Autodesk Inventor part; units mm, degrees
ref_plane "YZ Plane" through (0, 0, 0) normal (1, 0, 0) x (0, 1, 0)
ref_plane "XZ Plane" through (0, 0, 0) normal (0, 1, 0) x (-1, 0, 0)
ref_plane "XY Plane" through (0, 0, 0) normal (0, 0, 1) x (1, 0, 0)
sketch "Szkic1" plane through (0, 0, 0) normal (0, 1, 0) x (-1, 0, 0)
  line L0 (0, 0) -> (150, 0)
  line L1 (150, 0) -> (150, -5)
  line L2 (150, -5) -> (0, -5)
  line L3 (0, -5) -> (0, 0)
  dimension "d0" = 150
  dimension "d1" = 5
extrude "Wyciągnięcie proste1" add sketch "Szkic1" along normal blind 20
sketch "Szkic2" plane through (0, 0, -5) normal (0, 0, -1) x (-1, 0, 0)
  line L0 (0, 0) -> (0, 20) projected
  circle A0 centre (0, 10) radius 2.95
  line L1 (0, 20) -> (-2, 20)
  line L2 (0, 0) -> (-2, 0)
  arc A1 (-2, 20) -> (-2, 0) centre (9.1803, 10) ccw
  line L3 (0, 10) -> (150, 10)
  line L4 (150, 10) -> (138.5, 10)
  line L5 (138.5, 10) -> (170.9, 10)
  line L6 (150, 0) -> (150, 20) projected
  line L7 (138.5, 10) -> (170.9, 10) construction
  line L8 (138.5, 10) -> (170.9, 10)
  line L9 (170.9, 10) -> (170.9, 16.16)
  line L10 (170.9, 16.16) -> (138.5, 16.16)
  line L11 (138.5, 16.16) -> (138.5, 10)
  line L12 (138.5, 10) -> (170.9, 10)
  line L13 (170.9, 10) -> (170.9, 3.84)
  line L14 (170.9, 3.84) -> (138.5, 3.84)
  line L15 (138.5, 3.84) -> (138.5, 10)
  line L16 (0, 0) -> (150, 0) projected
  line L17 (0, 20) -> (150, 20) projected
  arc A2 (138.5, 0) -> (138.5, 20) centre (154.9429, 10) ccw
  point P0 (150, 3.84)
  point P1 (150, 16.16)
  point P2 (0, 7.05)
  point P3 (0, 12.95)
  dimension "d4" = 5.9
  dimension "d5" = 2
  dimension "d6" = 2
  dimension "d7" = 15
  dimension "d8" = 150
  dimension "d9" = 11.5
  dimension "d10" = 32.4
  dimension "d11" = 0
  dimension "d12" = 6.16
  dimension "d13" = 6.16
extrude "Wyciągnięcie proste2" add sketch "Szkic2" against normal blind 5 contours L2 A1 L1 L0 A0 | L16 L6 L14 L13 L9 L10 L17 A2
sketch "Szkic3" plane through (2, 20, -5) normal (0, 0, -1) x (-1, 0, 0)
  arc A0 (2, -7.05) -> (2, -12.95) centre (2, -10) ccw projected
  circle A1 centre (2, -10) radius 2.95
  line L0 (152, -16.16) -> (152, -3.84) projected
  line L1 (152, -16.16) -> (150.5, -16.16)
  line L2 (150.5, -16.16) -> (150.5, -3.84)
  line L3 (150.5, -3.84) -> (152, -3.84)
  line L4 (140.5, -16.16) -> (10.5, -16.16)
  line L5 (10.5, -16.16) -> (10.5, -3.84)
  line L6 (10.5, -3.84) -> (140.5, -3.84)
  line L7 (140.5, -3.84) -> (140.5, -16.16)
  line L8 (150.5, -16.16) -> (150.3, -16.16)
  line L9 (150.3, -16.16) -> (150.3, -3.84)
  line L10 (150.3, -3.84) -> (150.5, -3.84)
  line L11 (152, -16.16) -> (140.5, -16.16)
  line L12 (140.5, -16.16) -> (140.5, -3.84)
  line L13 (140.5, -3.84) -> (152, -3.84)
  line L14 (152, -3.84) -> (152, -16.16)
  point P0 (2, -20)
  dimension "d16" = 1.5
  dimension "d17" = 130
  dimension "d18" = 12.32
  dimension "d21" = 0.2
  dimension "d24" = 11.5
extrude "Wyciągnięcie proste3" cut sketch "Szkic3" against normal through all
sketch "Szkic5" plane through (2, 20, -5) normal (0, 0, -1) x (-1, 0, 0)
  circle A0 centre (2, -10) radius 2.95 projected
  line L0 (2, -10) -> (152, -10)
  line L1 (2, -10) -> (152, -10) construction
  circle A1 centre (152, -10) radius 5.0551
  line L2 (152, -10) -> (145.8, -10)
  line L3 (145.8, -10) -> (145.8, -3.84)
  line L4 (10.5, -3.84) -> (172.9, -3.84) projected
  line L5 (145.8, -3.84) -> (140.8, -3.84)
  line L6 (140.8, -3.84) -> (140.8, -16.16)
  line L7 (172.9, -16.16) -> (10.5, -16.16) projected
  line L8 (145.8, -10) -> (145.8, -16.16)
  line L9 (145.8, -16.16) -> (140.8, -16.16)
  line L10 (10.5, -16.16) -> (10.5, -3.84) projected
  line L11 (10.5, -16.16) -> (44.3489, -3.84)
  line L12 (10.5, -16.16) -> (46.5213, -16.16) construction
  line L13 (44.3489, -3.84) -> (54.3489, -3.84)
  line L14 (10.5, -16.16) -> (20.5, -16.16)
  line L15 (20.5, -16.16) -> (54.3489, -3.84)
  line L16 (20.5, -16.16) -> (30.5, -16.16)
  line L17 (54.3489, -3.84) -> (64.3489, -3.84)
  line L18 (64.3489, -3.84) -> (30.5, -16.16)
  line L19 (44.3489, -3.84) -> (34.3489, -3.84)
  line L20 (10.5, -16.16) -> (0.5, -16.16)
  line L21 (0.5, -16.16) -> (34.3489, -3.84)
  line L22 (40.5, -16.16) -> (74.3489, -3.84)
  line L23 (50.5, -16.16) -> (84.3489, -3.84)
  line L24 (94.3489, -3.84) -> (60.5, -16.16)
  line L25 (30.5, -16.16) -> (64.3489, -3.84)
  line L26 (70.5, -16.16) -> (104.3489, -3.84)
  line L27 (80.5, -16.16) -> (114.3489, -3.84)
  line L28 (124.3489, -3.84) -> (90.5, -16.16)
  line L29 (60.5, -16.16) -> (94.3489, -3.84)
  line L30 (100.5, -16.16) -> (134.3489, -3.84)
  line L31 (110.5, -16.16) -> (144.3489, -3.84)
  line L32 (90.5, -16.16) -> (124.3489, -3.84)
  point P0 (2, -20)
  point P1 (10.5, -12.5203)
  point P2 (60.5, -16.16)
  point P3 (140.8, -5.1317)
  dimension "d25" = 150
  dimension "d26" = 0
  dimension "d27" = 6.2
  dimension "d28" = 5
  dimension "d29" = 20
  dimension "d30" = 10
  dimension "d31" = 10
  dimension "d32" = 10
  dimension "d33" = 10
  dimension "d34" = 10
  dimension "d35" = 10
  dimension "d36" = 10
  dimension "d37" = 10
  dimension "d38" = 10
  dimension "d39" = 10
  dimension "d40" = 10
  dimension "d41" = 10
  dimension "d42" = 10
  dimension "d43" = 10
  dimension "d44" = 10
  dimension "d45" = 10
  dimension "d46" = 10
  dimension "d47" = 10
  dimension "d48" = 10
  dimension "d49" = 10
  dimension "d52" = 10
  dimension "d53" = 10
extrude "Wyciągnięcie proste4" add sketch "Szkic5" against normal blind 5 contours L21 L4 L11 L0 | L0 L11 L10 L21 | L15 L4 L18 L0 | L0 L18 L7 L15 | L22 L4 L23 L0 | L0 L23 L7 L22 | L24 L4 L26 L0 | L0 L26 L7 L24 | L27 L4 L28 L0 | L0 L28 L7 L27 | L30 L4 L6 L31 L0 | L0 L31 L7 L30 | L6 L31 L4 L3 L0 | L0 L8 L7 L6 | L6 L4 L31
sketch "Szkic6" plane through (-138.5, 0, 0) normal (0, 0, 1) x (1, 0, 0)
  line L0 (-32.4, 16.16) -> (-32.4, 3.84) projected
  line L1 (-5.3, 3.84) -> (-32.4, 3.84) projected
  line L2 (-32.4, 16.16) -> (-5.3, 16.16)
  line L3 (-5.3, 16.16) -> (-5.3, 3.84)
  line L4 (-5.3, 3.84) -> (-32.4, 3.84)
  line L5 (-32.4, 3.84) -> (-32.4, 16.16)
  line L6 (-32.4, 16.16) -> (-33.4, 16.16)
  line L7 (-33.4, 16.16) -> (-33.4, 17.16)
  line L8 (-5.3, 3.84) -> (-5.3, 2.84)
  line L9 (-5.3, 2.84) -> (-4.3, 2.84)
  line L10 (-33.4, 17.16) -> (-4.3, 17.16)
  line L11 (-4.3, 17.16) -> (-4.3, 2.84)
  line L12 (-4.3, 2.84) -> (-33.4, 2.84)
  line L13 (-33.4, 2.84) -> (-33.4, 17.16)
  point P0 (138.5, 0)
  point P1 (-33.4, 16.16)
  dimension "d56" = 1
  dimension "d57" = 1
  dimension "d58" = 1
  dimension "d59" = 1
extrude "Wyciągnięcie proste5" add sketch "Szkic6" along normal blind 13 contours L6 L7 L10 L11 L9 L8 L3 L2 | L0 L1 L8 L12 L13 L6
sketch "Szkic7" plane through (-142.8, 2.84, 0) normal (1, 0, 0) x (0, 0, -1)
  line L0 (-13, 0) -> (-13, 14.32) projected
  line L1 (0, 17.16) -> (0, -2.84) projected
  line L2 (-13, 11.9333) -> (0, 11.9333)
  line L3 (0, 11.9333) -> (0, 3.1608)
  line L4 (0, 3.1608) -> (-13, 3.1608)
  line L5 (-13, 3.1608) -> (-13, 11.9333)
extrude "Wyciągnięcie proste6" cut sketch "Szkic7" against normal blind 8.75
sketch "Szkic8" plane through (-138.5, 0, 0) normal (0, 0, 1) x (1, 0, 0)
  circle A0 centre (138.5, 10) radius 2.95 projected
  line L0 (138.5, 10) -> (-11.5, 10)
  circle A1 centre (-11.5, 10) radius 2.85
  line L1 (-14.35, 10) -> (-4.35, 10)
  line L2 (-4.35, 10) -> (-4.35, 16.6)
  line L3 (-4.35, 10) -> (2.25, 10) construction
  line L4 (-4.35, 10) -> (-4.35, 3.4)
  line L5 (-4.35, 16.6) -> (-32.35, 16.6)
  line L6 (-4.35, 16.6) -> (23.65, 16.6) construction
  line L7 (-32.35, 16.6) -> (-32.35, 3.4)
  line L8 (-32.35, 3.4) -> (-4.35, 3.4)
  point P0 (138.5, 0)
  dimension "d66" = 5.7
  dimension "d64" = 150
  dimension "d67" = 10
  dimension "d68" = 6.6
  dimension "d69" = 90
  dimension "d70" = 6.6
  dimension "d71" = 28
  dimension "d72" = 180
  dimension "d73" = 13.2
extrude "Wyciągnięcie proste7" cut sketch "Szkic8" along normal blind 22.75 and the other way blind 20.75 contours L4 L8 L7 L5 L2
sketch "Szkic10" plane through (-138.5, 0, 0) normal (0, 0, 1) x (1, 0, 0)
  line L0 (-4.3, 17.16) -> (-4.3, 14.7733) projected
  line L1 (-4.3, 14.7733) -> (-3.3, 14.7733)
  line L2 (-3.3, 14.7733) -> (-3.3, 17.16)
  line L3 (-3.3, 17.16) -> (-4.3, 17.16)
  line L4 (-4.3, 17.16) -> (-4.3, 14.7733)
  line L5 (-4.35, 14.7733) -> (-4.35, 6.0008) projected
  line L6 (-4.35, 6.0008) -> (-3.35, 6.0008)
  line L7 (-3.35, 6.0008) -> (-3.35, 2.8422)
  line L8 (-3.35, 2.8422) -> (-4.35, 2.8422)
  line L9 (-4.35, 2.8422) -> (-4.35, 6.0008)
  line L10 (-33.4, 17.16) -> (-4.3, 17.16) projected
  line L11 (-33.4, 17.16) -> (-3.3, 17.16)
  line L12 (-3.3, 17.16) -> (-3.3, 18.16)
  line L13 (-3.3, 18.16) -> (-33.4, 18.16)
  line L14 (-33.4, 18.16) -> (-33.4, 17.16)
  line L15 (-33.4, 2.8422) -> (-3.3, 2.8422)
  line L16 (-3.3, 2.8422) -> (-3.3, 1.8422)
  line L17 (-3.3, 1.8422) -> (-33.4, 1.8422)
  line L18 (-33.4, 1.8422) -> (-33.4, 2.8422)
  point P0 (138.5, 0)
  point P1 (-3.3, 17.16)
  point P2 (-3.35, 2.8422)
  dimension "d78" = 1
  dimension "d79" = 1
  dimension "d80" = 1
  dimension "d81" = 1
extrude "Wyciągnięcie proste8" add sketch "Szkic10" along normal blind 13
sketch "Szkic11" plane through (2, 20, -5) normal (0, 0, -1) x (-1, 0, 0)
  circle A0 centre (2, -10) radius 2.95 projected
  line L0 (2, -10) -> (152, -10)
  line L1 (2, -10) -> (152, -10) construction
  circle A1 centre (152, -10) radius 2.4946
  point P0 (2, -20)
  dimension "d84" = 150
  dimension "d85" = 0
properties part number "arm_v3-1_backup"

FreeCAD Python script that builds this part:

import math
import FreeCAD as App
import Part
import Sketcher
from FreeCAD import Vector
Q = App.Units.Quantity

doc = App.newDocument("Part")
params = doc.addObject("Spreadsheet::Sheet", "Params")
for row, (alias, value) in enumerate([
    ("sketch1_width", "150 mm"),
    ("sketch1_height", "5 mm"),
    ("pad1_length", "20 mm"),
    ("sketch2_radius", "15 mm"),
    ("sketch2_width", "2 mm"),
    ("sketch2_radius2", "2.95 mm"),
    ("sketch2_width2", "11.5 mm"),
    ("pad2_length", "5 mm"),
    ("sketch3_diameter", "5.9 mm"),
    ("sketch3_height", "12.32 mm"),
    ("sketch3_width", "141.5 mm"),
    ("sketch4_width", "10 mm"),
    ("sketch4_width2", "5 mm"),
    ("sketch4_height", "12.32 mm"),
    ("pad3_length", "5 mm"),
    ("sketch5_width", "29.1 mm"),
    ("sketch5_height", "14.32 mm"),
    ("pad4_length", "13 mm"),
    ("sketch6_height", "13 mm"),
    ("pocket2_length", "8.75 mm"),
    ("sketch7_diameter", "5.7 mm"),
    ("sketch7_width", "28 mm"),
    ("sketch7_height", "6.6 mm"),
    ("sketch8_width", "1 mm"),
    ("sketch8_width2", "30.1 mm"),
    ("sketch8_width3", "29.05 mm"),
    ("pad5_length", "13 mm"),
], start=1):
    params.set(f"A{row}", alias)
    params.set(f"B{row}", "=" + value)
    params.setAlias(f"B{row}", alias)

body = doc.addObject("PartDesign::Body", "Body")

# Sketch on XZ plane
sketch1 = doc.addObject("Sketcher::SketchObject", "Sketch")
body.addObject(sketch1)
sketch1.AttachmentSupport = (doc.XZ_Plane, [""])
sketch1.MapMode = "FlatFace"
sketch1.addGeometry([
    Part.LineSegment(Vector(-150, 0, 0), Vector(0, 0, 0)),
    Part.LineSegment(Vector(0, 0, 0), Vector(0, -5, 0)),
    Part.LineSegment(Vector(0, -5, 0), Vector(-150, -5, 0)),
    Part.LineSegment(Vector(-150, -5, 0), Vector(-150, 0, 0)),
], False)
sketch1.addConstraint([
    Sketcher.Constraint("Coincident", 0, 2, 1, 1),
    Sketcher.Constraint("Coincident", 1, 2, 2, 1),
    Sketcher.Constraint("Coincident", 2, 2, 3, 1),
    Sketcher.Constraint("Coincident", 3, 2, 0, 1),
    Sketcher.Constraint("Horizontal", 0),
    Sketcher.Constraint("Vertical", 1),
    Sketcher.Constraint("Horizontal", 2),
    Sketcher.Constraint("Vertical", 3),
    Sketcher.Constraint("Coincident", 0, 2, -1, 1),
    Sketcher.Constraint("DistanceX", 0, 1, 0, 2, Q("150 mm")),
    Sketcher.Constraint("DistanceY", 1, 2, 1, 1, Q("5 mm")),
])
sketch1.setExpression("Constraints[9]", "Params.sketch1_width")
sketch1.setExpression("Constraints[10]", "Params.sketch1_height")
pad1 = doc.addObject("PartDesign::Pad", "Pad")
body.addObject(pad1)
pad1.Profile = sketch1
pad1.setExpression("Length", "Params.pad1_length")
pad1.Reversed = True

# Sketch on XY plane
sketch2 = doc.addObject("Sketcher::SketchObject", "Sketch001")
body.addObject(sketch2)
sketch2.AttachmentSupport = (doc.XY_Plane, [""])
sketch2.MapMode = "FlatFace"
sketch2.AttachmentOffset = App.Placement(Vector(0, 0, -5), App.Rotation())
sketch2.addGeometry([
    Part.LineSegment(Vector(2, 0, 0), Vector(0, 0, 0)),  # 0
    Part.LineSegment(Vector(0, 0, 0), Vector(0, 7, 0)),  # 1
    Part.ArcOfCircle(Part.Circle(Vector(0, 10, 0), Vector(0, 0, 1), 3), math.radians(-90), math.radians(90)),  # 2
    Part.LineSegment(Vector(0, 12.9, 0), Vector(0, 20, 0)),  # 3
    Part.LineSegment(Vector(0, 20, 0), Vector(2, 20, 0)),  # 4
    Part.ArcOfCircle(Part.Circle(Vector(-9.2, 10, 0), Vector(0, 0, 1), 15), math.radians(-42), math.radians(42)),  # 5
    Part.LineSegment(Vector(-150, 0, 0), Vector(-138.5, 0, 0)),  # 6
    Part.ArcOfCircle(Part.Circle(Vector(-154.9, 10, 0), Vector(0, 0, 1), 19.2), math.radians(31), math.radians(329)),  # 7
    Part.LineSegment(Vector(-138.5, 20, 0), Vector(-150, 20, 0)),  # 8
    Part.LineSegment(Vector(-150, 20, 0), Vector(-150, 16.2, 0)),  # 9
    Part.LineSegment(Vector(-150, 16.2, 0), Vector(-170.9, 16.2, 0)),  # 10
    Part.LineSegment(Vector(-170.9, 16.2, 0), Vector(-170.9, 3.8, 0)),  # 11
    Part.LineSegment(Vector(-170.9, 3.8, 0), Vector(-150, 3.8, 0)),  # 12
    Part.LineSegment(Vector(-150, 3.8, 0), Vector(-150, 0, 0)),  # 13
], False)
sketch2.addConstraint([
    Sketcher.Constraint("Coincident", 0, 2, 1, 1),
    Sketcher.Constraint("Coincident", 1, 2, 2, 1),
    Sketcher.Constraint("Coincident", 2, 2, 3, 1),
    Sketcher.Constraint("Coincident", 3, 2, 4, 1),
    Sketcher.Constraint("Coincident", 4, 2, 5, 2),
    Sketcher.Constraint("Coincident", 5, 1, 0, 1),
    Sketcher.Constraint("Coincident", 6, 2, 7, 2),
    Sketcher.Constraint("Coincident", 7, 1, 8, 1),
    Sketcher.Constraint("Coincident", 8, 2, 9, 1),
    Sketcher.Constraint("Coincident", 9, 2, 10, 1),
    Sketcher.Constraint("Coincident", 10, 2, 11, 1),
    Sketcher.Constraint("Coincident", 11, 2, 12, 1),
    Sketcher.Constraint("Coincident", 12, 2, 13, 1),
    Sketcher.Constraint("Coincident", 13, 2, 6, 1),
    Sketcher.Constraint("Horizontal", 0),
    Sketcher.Constraint("Vertical", 1),
    Sketcher.Constraint("Vertical", 3),
    Sketcher.Constraint("Horizontal", 4),
    Sketcher.Constraint("Horizontal", 6),
    Sketcher.Constraint("Horizontal", 8),
    Sketcher.Constraint("Vertical", 9),
    Sketcher.Constraint("Horizontal", 10),
    Sketcher.Constraint("Vertical", 11),
    Sketcher.Constraint("Horizontal", 12),
    Sketcher.Constraint("Vertical", 13),
    Sketcher.Constraint("Coincident", 0, 2, -1, 1),
    Sketcher.Constraint("PointOnObject", 2, 3, -2),
    Sketcher.Constraint("PointOnObject", 2, 2, -2),
    Sketcher.Constraint("PointOnObject", 6, 2, -1),
    Sketcher.Constraint("Horizontal", 2, 3, 5, 3),
    Sketcher.Constraint("Horizontal", 5, 3, 7, 3),
    Sketcher.Constraint("Horizontal", 4, 2, 7, 1),
    Sketcher.Constraint("Vertical", 4, 2, 5, 1),
    Sketcher.Constraint("Vertical", 9, 2, 12, 2),
    Sketcher.Constraint("Equal", 9, 13),
    Sketcher.Constraint("Radius", 5, Q("15 mm")),
    Sketcher.Constraint("DistanceX", 0, 2, 0, 1, Q("2 mm")),
    Sketcher.Constraint("Radius", 2, Q("2.95 mm")),
    Sketcher.Constraint("DistanceX", 6, 1, 6, 2, Q("11.5 mm")),
    Sketcher.Constraint("DistanceX", 8, 2, -1, 1, Q("150 mm")),
    Sketcher.Constraint("DistanceX", 10, 2, 7, 1, Q("32.4 mm")),
    Sketcher.Constraint("DistanceY", 7, 3, 9, 2, Q("6.16 mm")),
    Sketcher.Constraint("DistanceY", -1, 1, 2, 3, Q("10 mm")),
    Sketcher.Constraint("Radius", 7, Q("19.245 mm")),
])
sketch2.setExpression("Constraints[35]", "Params.sketch2_radius")
sketch2.setExpression("Constraints[36]", "Params.sketch2_width")
sketch2.setExpression("Constraints[37]", "Params.sketch2_radius2")
sketch2.setExpression("Constraints[38]", "Params.sketch2_width2")
pad2 = doc.addObject("PartDesign::Pad", "Pad001")
body.addObject(pad2)
pad2.Profile = sketch2
pad2.setExpression("Length", "Params.pad2_length")

# Sketch on XY plane
sketch3 = doc.addObject("Sketcher::SketchObject", "Sketch002")
body.addObject(sketch3)
sketch3.AttachmentSupport = (doc.XY_Plane, [""])
sketch3.MapMode = "FlatFace"
sketch3.AttachmentOffset = App.Placement(Vector(0, 0, -5), App.Rotation())
sketch3.addGeometry([
    Part.Circle(Vector(0, 10, 0), Vector(0, 0, 1), 3),  # 0
    Part.LineSegment(Vector(-150, 3.8, 0), Vector(-150, 16.2, 0)),  # 1
    Part.LineSegment(Vector(-150, 16.2, 0), Vector(-8.5, 16.2, 0)),  # 2
    Part.LineSegment(Vector(-8.5, 16.2, 0), Vector(-8.5, 3.8, 0)),  # 3
    Part.LineSegment(Vector(-8.5, 3.8, 0), Vector(-150, 3.8, 0)),  # 4
], False)
sketch3.addConstraint([
    Sketcher.Constraint("Coincident", 1, 2, 2, 1),
    Sketcher.Constraint("Coincident", 2, 2, 3, 1),
    Sketcher.Constraint("Coincident", 3, 2, 4, 1),
    Sketcher.Constraint("Coincident", 4, 2, 1, 1),
    Sketcher.Constraint("Vertical", 1),
    Sketcher.Constraint("Horizontal", 2),
    Sketcher.Constraint("Vertical", 3),
    Sketcher.Constraint("Horizontal", 4),
    Sketcher.Constraint("PointOnObject", 0, 3, -2),
    Sketcher.Constraint("Diameter", 0, Q("5.9 mm")),
    Sketcher.Constraint("DistanceY", 1, 1, 1, 2, Q("12.32 mm")),
    Sketcher.Constraint("DistanceX", 2, 1, 2, 2, Q("141.5 mm")),
    Sketcher.Constraint("DistanceY", -1, 1, 0, 3, Q("10 mm")),
    Sketcher.Constraint("DistanceX", 1, 2, -1, 1, Q("150 mm")),
    Sketcher.Constraint("DistanceY", -1, 1, 1, 2, Q("16.16 mm")),
])
sketch3.setExpression("Constraints[9]", "Params.sketch3_diameter")
sketch3.setExpression("Constraints[10]", "Params.sketch3_height")
sketch3.setExpression("Constraints[11]", "Params.sketch3_width")
pocket1 = doc.addObject("PartDesign::Pocket", "Pocket")
body.addObject(pocket1)
pocket1.Profile = sketch3
pocket1.Type = "ThroughAll"
pocket1.Reversed = True

# Sketch on XY plane
sketch4 = doc.addObject("Sketcher::SketchObject", "Sketch003")
body.addObject(sketch4)
sketch4.AttachmentSupport = (doc.XY_Plane, [""])
sketch4.MapMode = "FlatFace"
sketch4.AttachmentOffset = App.Placement(Vector(0, 0, -5), App.Rotation())
sketch4.addGeometry([
    Part.LineSegment(Vector(-32.3, 16.2, 0), Vector(-8.5, 7.5, 0)),  # 0
    Part.LineSegment(Vector(-8.5, 7.5, 0), Vector(-8.5, 3.8, 0)),  # 1
    Part.LineSegment(Vector(-8.5, 3.8, 0), Vector(-42.3, 16.2, 0)),  # 2
    Part.LineSegment(Vector(-42.3, 16.2, 0), Vector(-32.3, 16.2, 0)),  # 3
    Part.LineSegment(Vector(-52.3, 16.2, 0), Vector(-18.5, 3.8, 0)),  # 4
    Part.LineSegment(Vector(-18.5, 3.8, 0), Vector(-28.5, 3.8, 0)),  # 5
    Part.LineSegment(Vector(-28.5, 3.8, 0), Vector(-62.3, 16.2, 0)),  # 6
    Part.LineSegment(Vector(-62.3, 16.2, 0), Vector(-52.3, 16.2, 0)),  # 7
    Part.LineSegment(Vector(-72.3, 16.2, 0), Vector(-38.5, 3.8, 0)),  # 8
    Part.LineSegment(Vector(-38.5, 3.8, 0), Vector(-48.5, 3.8, 0)),  # 9
    Part.LineSegment(Vector(-48.5, 3.8, 0), Vector(-82.3, 16.2, 0)),  # 10
    Part.LineSegment(Vector(-82.3, 16.2, 0), Vector(-72.3, 16.2, 0)),  # 11
    Part.LineSegment(Vector(-92.3, 16.2, 0), Vector(-58.5, 3.8, 0)),  # 12
    Part.LineSegment(Vector(-58.5, 3.8, 0), Vector(-68.5, 3.8, 0)),  # 13
    Part.LineSegment(Vector(-68.5, 3.8, 0), Vector(-102.3, 16.2, 0)),  # 14
    Part.LineSegment(Vector(-102.3, 16.2, 0), Vector(-92.3, 16.2, 0)),  # 15
    Part.LineSegment(Vector(-112.3, 16.2, 0), Vector(-78.5, 3.8, 0)),  # 16
    Part.LineSegment(Vector(-78.5, 3.8, 0), Vector(-88.5, 3.8, 0)),  # 17
    Part.LineSegment(Vector(-88.5, 3.8, 0), Vector(-122.3, 16.2, 0)),  # 18
    Part.LineSegment(Vector(-122.3, 16.2, 0), Vector(-112.3, 16.2, 0)),  # 19
    Part.LineSegment(Vector(-132.3, 16.2, 0), Vector(-98.5, 3.8, 0)),  # 20
    Part.LineSegment(Vector(-98.5, 3.8, 0), Vector(-108.5, 3.8, 0)),  # 21
    Part.LineSegment(Vector(-108.5, 3.8, 0), Vector(-138.8, 14.9, 0)),  # 22
    Part.LineSegment(Vector(-138.8, 14.9, 0), Vector(-138.8, 3.8, 0)),  # 23
    Part.LineSegment(Vector(-138.8, 3.8, 0), Vector(-143.8, 3.8, 0)),  # 24
    Part.LineSegment(Vector(-143.8, 3.8, 0), Vector(-143.8, 16.2, 0)),  # 25
    Part.LineSegment(Vector(-143.8, 16.2, 0), Vector(-132.3, 16.2, 0)),  # 26
], False)
sketch4.addConstraint([
    Sketcher.Constraint("Coincident", 0, 2, 1, 1),
    Sketcher.Constraint("Coincident", 1, 2, 2, 1),
    Sketcher.Constraint("Coincident", 2, 2, 3, 1),
    Sketcher.Constraint("Coincident", 3, 2, 0, 1),
    Sketcher.Constraint("Coincident", 4, 2, 5, 1),
    Sketcher.Constraint("Coincident", 5, 2, 6, 1),
    Sketcher.Constraint("Coincident", 6, 2, 7, 1),
    Sketcher.Constraint("Coincident", 7, 2, 4, 1),
    Sketcher.Constraint("Coincident", 8, 2, 9, 1),
    Sketcher.Constraint("Coincident", 9, 2, 10, 1),
    Sketcher.Constraint("Coincident", 10, 2, 11, 1),
    Sketcher.Constraint("Coincident", 11, 2, 8, 1),
    Sketcher.Constraint("Coincident", 12, 2, 13, 1),
    Sketcher.Constraint("Coincident", 13, 2, 14, 1),
    Sketcher.Constraint("Coincident", 14, 2, 15, 1),
    Sketcher.Constraint("Coincident", 15, 2, 12, 1),
    Sketcher.Constraint("Coincident", 16, 2, 17, 1),
    Sketcher.Constraint("Coincident", 17, 2, 18, 1),
    Sketcher.Constraint("Coincident", 18, 2, 19, 1),
    Sketcher.Constraint("Coincident", 19, 2, 16, 1),
    Sketcher.Constraint("Coincident", 20, 2, 21, 1),
    Sketcher.Constraint("Coincident", 21, 2, 22, 1),
    Sketcher.Constraint("Coincident", 22, 2, 23, 1),
    Sketcher.Constraint("Coincident", 23, 2, 24, 1),
    Sketcher.Constraint("Coincident", 24, 2, 25, 1),
    Sketcher.Constraint("Coincident", 25, 2, 26, 1),
    Sketcher.Constraint("Coincident", 26, 2, 20, 1),
    Sketcher.Constraint("Vertical", 1),
    Sketcher.Constraint("Horizontal", 3),
    Sketcher.Constraint("Horizontal", 5),
    Sketcher.Constraint("Horizontal", 7),
    Sketcher.Constraint("Horizontal", 9),
    Sketcher.Constraint("Horizontal", 11),
    Sketcher.Constraint("Horizontal", 13),
    Sketcher.Constraint("Horizontal", 15),
    Sketcher.Constraint("Horizontal", 17),
    Sketcher.Constraint("Horizontal", 19),
    Sketcher.Constraint("Horizontal", 21),
    Sketcher.Constraint("Vertical", 23),
    Sketcher.Constraint("Horizontal", 24),
    Sketcher.Constraint("Vertical", 25),
    Sketcher.Constraint("Horizontal", 26),
    Sketcher.Constraint("Parallel", 0, 2),
    Sketcher.Constraint("Parallel", 2, 4),
    Sketcher.Constraint("Parallel", 4, 6),
    Sketcher.Constraint("Parallel", 6, 8),
    Sketcher.Constraint("Parallel", 8, 10),
    Sketcher.Constraint("Parallel", 10, 12),
    Sketcher.Constraint("Parallel", 12, 14),
    Sketcher.Constraint("Parallel", 14, 16),
    Sketcher.Constraint("Parallel", 16, 18),
    Sketcher.Constraint("Parallel", 18, 20),
    Sketcher.Constraint("Parallel", 20, 22),
    Sketcher.Constraint("Horizontal", 1, 2, 4, 2),
    Sketcher.Constraint("Horizontal", 3, 2, 6, 2),
    Sketcher.Constraint("Horizontal", 5, 2, 8, 2),
    Sketcher.Constraint("Horizontal", 7, 2, 10, 2),
    Sketcher.Constraint("Horizontal", 9, 2, 12, 2),
    Sketcher.Constraint("Horizontal", 11, 2, 14, 2),
    Sketcher.Constraint("Horizontal", 13, 2, 16, 2),
    Sketcher.Constraint("Horizontal", 15, 2, 18, 2),
    Sketcher.Constraint("Horizontal", 17, 2, 20, 2),
    Sketcher.Constraint("Horizontal", 21, 2, 23, 2),
    Sketcher.Constraint("Horizontal", 19, 2, 25, 2),
    Sketcher.Constraint("Equal", 3, 5),
    Sketcher.Constraint("Equal", 7, 9),
    Sketcher.Constraint("Equal", 11, 13),
    Sketcher.Constraint("Equal", 15, 17),
    Sketcher.Constraint("Equal", 19, 21),
    Sketcher.Constraint("DistanceX", 3, 1, 3, 2, Q("10 mm")),
    Sketcher.Constraint("DistanceX", 24, 2, 24, 1, Q("5 mm")),
    Sketcher.Constraint("Angle", 0, Q("-20 deg")),
    Sketcher.Constraint("DistanceX", 4, 2, 1, 2, Q("10 mm")),
    Sketcher.Constraint("DistanceX", 8, 2, 5, 2, Q("10 mm")),
    Sketcher.Constraint("DistanceX", 12, 2, 9, 2, Q("10 mm")),
    Sketcher.Constraint("DistanceX", 16, 2, 13, 2, Q("10 mm")),
    Sketcher.Constraint("DistanceX", 20, 2, 17, 2, Q("10 mm")),
    Sketcher.Constraint("DistanceY", 25, 1, 25, 2, Q("12.32 mm")),
    Sketcher.Constraint("DistanceX", 0, 2, -1, 1, Q("8.5 mm")),
    Sketcher.Constraint("DistanceX", 22, 2, -1, 1, Q("138.8 mm")),
    Sketcher.Constraint("DistanceY", -1, 1, 1, 2, Q("3.84 mm")),
])
sketch4.setExpression("Constraints[69]", "Params.sketch4_width")
sketch4.setExpression("Constraints[70]", "Params.sketch4_width2")
sketch4.setExpression("Constraints[77]", "Params.sketch4_height")
pad3 = doc.addObject("PartDesign::Pad", "Pad002")
body.addObject(pad3)
pad3.Profile = sketch4
pad3.setExpression("Length", "Params.pad3_length")

# Sketch on XY plane
sketch5 = doc.addObject("Sketcher::SketchObject", "Sketch004")
body.addObject(sketch5)
sketch5.AttachmentSupport = (doc.XY_Plane, [""])
sketch5.MapMode = "FlatFace"
sketch5.addGeometry([
    Part.LineSegment(Vector(-172, 17, 0), Vector(-172, 3, 0)),  # 0
    Part.LineSegment(Vector(-172, 3, 0), Vector(-143, 3, 0)),  # 1
    Part.LineSegment(Vector(-143, 3, 0), Vector(-143, 17, 0)),  # 2
    Part.LineSegment(Vector(-143, 17, 0), Vector(-172, 17, 0)),  # 3
    Part.LineSegment(Vector(-144, 16, 0), Vector(-144, 4, 0)),  # 4
    Part.LineSegment(Vector(-144, 4, 0), Vector(-171, 4, 0)),  # 5
    Part.LineSegment(Vector(-171, 4, 0), Vector(-171, 16, 0)),  # 6
    Part.LineSegment(Vector(-171, 16, 0), Vector(-144, 16, 0)),  # 7
], False)
sketch5.addConstraint([
    Sketcher.Constraint("Coincident", 0, 2, 1, 1),
    Sketcher.Constraint("Coincident", 1, 2, 2, 1),
    Sketcher.Constraint("Coincident", 2, 2, 3, 1),
    Sketcher.Constraint("Coincident", 3, 2, 0, 1),
    Sketcher.Constraint("Coincident", 4, 2, 5, 1),
    Sketcher.Constraint("Coincident", 5, 2, 6, 1),
    Sketcher.Constraint("Coincident", 6, 2, 7, 1),
    Sketcher.Constraint("Coincident", 7, 2, 4, 1),
    Sketcher.Constraint("Vertical", 0),
    Sketcher.Constraint("Horizontal", 1),
    Sketcher.Constraint("Vertical", 2),
    Sketcher.Constraint("Horizontal", 3),
    Sketcher.Constraint("Vertical", 4),
    Sketcher.Constraint("Horizontal", 5),
    Sketcher.Constraint("Vertical", 6),
    Sketcher.Constraint("Horizontal", 7),
    Sketcher.Constraint("DistanceX", 4, 2, 1, 2, Q("1 mm")),
    Sketcher.Constraint("DistanceY", 1, 2, 4, 2, Q("1 mm")),
    Sketcher.Constraint("DistanceX", 0, 2, 5, 2, Q("1 mm")),
    Sketcher.Constraint("DistanceY", 6, 2, 3, 2, Q("1 mm")),
    Sketcher.Constraint("DistanceX", 1, 1, 1, 2, Q("29.1 mm")),
    Sketcher.Constraint("DistanceY", 0, 2, 0, 1, Q("14.32 mm")),
    Sketcher.Constraint("DistanceX", 0, 2, -1, 1, Q("171.9 mm")),
    Sketcher.Constraint("DistanceY", -1, 1, 0, 2, Q("2.84 mm")),
])
sketch5.setExpression("Constraints[20]", "Params.sketch5_width")
sketch5.setExpression("Constraints[21]", "Params.sketch5_height")
pad4 = doc.addObject("PartDesign::Pad", "Pad003")
body.addObject(pad4)
pad4.Profile = sketch5
pad4.setExpression("Length", "Params.pad4_length")

# Sketch on YZ plane
sketch6 = doc.addObject("Sketcher::SketchObject", "Sketch005")
body.addObject(sketch6)
sketch6.AttachmentSupport = (doc.YZ_Plane, [""])
sketch6.MapMode = "FlatFace"
sketch6.AttachmentOffset = App.Placement(Vector(0, 0, -142.8), App.Rotation())
sketch6.addGeometry([
    Part.LineSegment(Vector(15, 13, 0), Vector(6, 13, 0)),
    Part.LineSegment(Vector(6, 13, 0), Vector(6, 0, 0)),
    Part.LineSegment(Vector(6, 0, 0), Vector(15, 0, 0)),
    Part.LineSegment(Vector(15, 0, 0), Vector(15, 13, 0)),
], False)
sketch6.addConstraint([
    Sketcher.Constraint("Coincident", 0, 2, 1, 1),
    Sketcher.Constraint("Coincident", 1, 2, 2, 1),
    Sketcher.Constraint("Coincident", 2, 2, 3, 1),
    Sketcher.Constraint("Coincident", 3, 2, 0, 1),
    Sketcher.Constraint("Horizontal", 0),
    Sketcher.Constraint("Vertical", 1),
    Sketcher.Constraint("Horizontal", 2),
    Sketcher.Constraint("Vertical", 3),
    Sketcher.Constraint("PointOnObject", 1, 2, -1),
    Sketcher.Constraint("DistanceY", 1, 2, 1, 1, Q("13 mm")),
    Sketcher.Constraint("DistanceX", 0, 2, 0, 1, Q("8.7725 mm")),
    Sketcher.Constraint("DistanceX", -1, 1, 0, 2, Q("6.0008 mm")),
])
sketch6.setExpression("Constraints[9]", "Params.sketch6_height")
pocket2 = doc.addObject("PartDesign::Pocket", "Pocket001")
body.addObject(pocket2)
pocket2.Profile = sketch6
pocket2.setExpression("Length", "Params.pocket2_length")

# Sketch on XY plane
sketch7 = doc.addObject("Sketcher::SketchObject", "Sketch006")
body.addObject(sketch7)
sketch7.AttachmentSupport = (doc.XY_Plane, [""])
sketch7.MapMode = "FlatFace"
sketch7.addGeometry([
    Part.LineSegment(Vector(-142.8, 3.4, 0), Vector(-142.8, 10, 0)),  # 0
    Part.LineSegment(Vector(-142.8, 10, 0), Vector(-142.8, 16.6, 0)),  # 1
    Part.LineSegment(Vector(-142.8, 16.6, 0), Vector(-170.8, 16.6, 0)),  # 2
    Part.LineSegment(Vector(-170.8, 16.6, 0), Vector(-170.8, 3.4, 0)),  # 3
    Part.LineSegment(Vector(-170.8, 3.4, 0), Vector(-142.8, 3.4, 0)),  # 4
    Part.Circle(Vector(-150, 10, 0), Vector(0, 0, 1), 2.9),  # 5
], False)
sketch7.addConstraint([
    Sketcher.Constraint("Coincident", 0, 2, 1, 1),
    Sketcher.Constraint("Coincident", 1, 2, 2, 1),
    Sketcher.Constraint("Coincident", 2, 2, 3, 1),
    Sketcher.Constraint("Coincident", 3, 2, 4, 1),
    Sketcher.Constraint("Coincident", 4, 2, 0, 1),
    Sketcher.Constraint("Vertical", 0),
    Sketcher.Constraint("Vertical", 1),
    Sketcher.Constraint("Horizontal", 2),
    Sketcher.Constraint("Vertical", 3),
    Sketcher.Constraint("Horizontal", 4),
    Sketcher.Constraint("Horizontal", 5, 3, 0, 2),
    Sketcher.Constraint("Equal", 0, 1),
    Sketcher.Constraint("Diameter", 5, Q("5.7 mm")),
    Sketcher.Constraint("DistanceX", 2, 2, 2, 1, Q("28 mm")),
    Sketcher.Constraint("DistanceY", 0, 1, 0, 2, Q("6.6 mm")),
    Sketcher.Constraint("DistanceX", 5, 3, -1, 1, Q("150 mm")),
    Sketcher.Constraint("DistanceY", -1, 1, 5, 3, Q("10 mm")),
    Sketcher.Constraint("DistanceX", 0, 2, -1, 1, Q("142.85 mm")),
])
sketch7.setExpression("Constraints[12]", "Params.sketch7_diameter")
sketch7.setExpression("Constraints[13]", "Params.sketch7_width")
sketch7.setExpression("Constraints[14]", "Params.sketch7_height")
pocket3 = doc.addObject("PartDesign::Pocket", "Pocket002")
body.addObject(pocket3)
pocket3.Profile = sketch7
pocket3.Type = "ThroughAll"
pocket3.Midplane = True

# Sketch on XY plane
sketch8 = doc.addObject("Sketcher::SketchObject", "Sketch007")
body.addObject(sketch8)
sketch8.AttachmentSupport = (doc.XY_Plane, [""])
sketch8.MapMode = "FlatFace"
sketch8.addGeometry([
    Part.LineSegment(Vector(-141.8, 14.773, 0), Vector(-141.8, 18.16, 0)),  # 0
    Part.LineSegment(Vector(-141.8, 18.16, 0), Vector(-171.9, 18.16, 0)),  # 1
    Part.LineSegment(Vector(-171.9, 18.16, 0), Vector(-171.9, 17.16, 0)),  # 2
    Part.LineSegment(Vector(-171.9, 17.16, 0), Vector(-142.8, 17.16, 0)),  # 3
    Part.LineSegment(Vector(-142.8, 17.16, 0), Vector(-142.8, 14.773, 0)),  # 4
    Part.LineSegment(Vector(-142.8, 14.773, 0), Vector(-141.8, 14.773, 0)),  # 5
    Part.LineSegment(Vector(-141.85, 6.001, 0), Vector(-142.85, 6.001, 0)),  # 6
    Part.LineSegment(Vector(-142.85, 6.001, 0), Vector(-142.85, 2.842, 0)),  # 7
    Part.LineSegment(Vector(-142.85, 2.842, 0), Vector(-171.9, 2.842, 0)),  # 8
    Part.LineSegment(Vector(-171.9, 2.842, 0), Vector(-171.9, 1.842, 0)),  # 9
    Part.LineSegment(Vector(-171.9, 1.842, 0), Vector(-141.8, 1.842, 0)),  # 10
    Part.LineSegment(Vector(-141.8, 1.842, 0), Vector(-141.8, 2.842, 0)),  # 11
    Part.LineSegment(Vector(-141.8, 2.842, 0), Vector(-141.85, 2.842, 0)),  # 12
    Part.LineSegment(Vector(-141.85, 2.842, 0), Vector(-141.85, 6.001, 0)),  # 13
], False)
sketch8.addConstraint([
    Sketcher.Constraint("Coincident", 0, 2, 1, 1),
    Sketcher.Constraint("Coincident", 1, 2, 2, 1),
    Sketcher.Constraint("Coincident", 2, 2, 3, 1),
    Sketcher.Constraint("Coincident", 3, 2, 4, 1),
    Sketcher.Constraint("Coincident", 4, 2, 5, 1),
    Sketcher.Constraint("Coincident", 5, 2, 0, 1),
    Sketcher.Constraint("Coincident", 6, 2, 7, 1),
    Sketcher.Constraint("Coincident", 7, 2, 8, 1),
    Sketcher.Constraint("Coincident", 8, 2, 9, 1),
    Sketcher.Constraint("Coincident", 9, 2, 10, 1),
    Sketcher.Constraint("Coincident", 10, 2, 11, 1),
    Sketcher.Constraint("Coincident", 11, 2, 12, 1),
    Sketcher.Constraint("Coincident", 12, 2, 13, 1),
    Sketcher.Constraint("Coincident", 13, 2, 6, 1),
    Sketcher.Constraint("Vertical", 0),
    Sketcher.Constraint("Horizontal", 1),
    Sketcher.Constraint("Vertical", 2),
    Sketcher.Constraint("Horizontal", 3),
    Sketcher.Constraint("Vertical", 4),
    Sketcher.Constraint("Horizontal", 5),
    Sketcher.Constraint("Horizontal", 6),
    Sketcher.Constraint("Vertical", 7),
    Sketcher.Constraint("Horizontal", 8),
    Sketcher.Constraint("Vertical", 9),
    Sketcher.Constraint("Horizontal", 10),
    Sketcher.Constraint("Vertical", 11),
    Sketcher.Constraint("Horizontal", 12),
    Sketcher.Constraint("Vertical", 13),
    Sketcher.Constraint("Horizontal", 8, 2, 11, 2),
    Sketcher.Constraint("Vertical", 2, 2, 8, 2),
    Sketcher.Constraint("Vertical", 5, 2, 10, 2),
    Sketcher.Constraint("Equal", 5, 6),
    Sketcher.Constraint("Equal", 6, 2),
    Sketcher.Constraint("Equal", 2, 9),
    Sketcher.Constraint("DistanceX", 5, 1, 5, 2, Q("1 mm")),
    Sketcher.Constraint("DistanceX", 1, 2, 1, 1, Q("30.1 mm")),
    Sketcher.Constraint("DistanceX", 8, 2, 8, 1, Q("29.05 mm")),
    Sketcher.Constraint("DistanceX", 0, 2, -1, 1, Q("141.8 mm")),
    Sketcher.Constraint("DistanceY", -1, 1, 0, 2, Q("18.16 mm")),
    Sketcher.Constraint("DistanceY", 0, 1, 0, 2, Q("3.3867 mm")),
    Sketcher.Constraint("DistanceY", 7, 2, 7, 1, Q("3.1586 mm")),
    Sketcher.Constraint("DistanceY", 7, 2, 4, 2, Q("11.931 mm")),
])
sketch8.setExpression("Constraints[34]", "Params.sketch8_width")
sketch8.setExpression("Constraints[35]", "Params.sketch8_width2")
sketch8.setExpression("Constraints[36]", "Params.sketch8_width3")
pad5 = doc.addObject("PartDesign::Pad", "Pad004")
body.addObject(pad5)
pad5.Profile = sketch8
pad5.setExpression("Length", "Params.pad5_length")

doc.recompute()
